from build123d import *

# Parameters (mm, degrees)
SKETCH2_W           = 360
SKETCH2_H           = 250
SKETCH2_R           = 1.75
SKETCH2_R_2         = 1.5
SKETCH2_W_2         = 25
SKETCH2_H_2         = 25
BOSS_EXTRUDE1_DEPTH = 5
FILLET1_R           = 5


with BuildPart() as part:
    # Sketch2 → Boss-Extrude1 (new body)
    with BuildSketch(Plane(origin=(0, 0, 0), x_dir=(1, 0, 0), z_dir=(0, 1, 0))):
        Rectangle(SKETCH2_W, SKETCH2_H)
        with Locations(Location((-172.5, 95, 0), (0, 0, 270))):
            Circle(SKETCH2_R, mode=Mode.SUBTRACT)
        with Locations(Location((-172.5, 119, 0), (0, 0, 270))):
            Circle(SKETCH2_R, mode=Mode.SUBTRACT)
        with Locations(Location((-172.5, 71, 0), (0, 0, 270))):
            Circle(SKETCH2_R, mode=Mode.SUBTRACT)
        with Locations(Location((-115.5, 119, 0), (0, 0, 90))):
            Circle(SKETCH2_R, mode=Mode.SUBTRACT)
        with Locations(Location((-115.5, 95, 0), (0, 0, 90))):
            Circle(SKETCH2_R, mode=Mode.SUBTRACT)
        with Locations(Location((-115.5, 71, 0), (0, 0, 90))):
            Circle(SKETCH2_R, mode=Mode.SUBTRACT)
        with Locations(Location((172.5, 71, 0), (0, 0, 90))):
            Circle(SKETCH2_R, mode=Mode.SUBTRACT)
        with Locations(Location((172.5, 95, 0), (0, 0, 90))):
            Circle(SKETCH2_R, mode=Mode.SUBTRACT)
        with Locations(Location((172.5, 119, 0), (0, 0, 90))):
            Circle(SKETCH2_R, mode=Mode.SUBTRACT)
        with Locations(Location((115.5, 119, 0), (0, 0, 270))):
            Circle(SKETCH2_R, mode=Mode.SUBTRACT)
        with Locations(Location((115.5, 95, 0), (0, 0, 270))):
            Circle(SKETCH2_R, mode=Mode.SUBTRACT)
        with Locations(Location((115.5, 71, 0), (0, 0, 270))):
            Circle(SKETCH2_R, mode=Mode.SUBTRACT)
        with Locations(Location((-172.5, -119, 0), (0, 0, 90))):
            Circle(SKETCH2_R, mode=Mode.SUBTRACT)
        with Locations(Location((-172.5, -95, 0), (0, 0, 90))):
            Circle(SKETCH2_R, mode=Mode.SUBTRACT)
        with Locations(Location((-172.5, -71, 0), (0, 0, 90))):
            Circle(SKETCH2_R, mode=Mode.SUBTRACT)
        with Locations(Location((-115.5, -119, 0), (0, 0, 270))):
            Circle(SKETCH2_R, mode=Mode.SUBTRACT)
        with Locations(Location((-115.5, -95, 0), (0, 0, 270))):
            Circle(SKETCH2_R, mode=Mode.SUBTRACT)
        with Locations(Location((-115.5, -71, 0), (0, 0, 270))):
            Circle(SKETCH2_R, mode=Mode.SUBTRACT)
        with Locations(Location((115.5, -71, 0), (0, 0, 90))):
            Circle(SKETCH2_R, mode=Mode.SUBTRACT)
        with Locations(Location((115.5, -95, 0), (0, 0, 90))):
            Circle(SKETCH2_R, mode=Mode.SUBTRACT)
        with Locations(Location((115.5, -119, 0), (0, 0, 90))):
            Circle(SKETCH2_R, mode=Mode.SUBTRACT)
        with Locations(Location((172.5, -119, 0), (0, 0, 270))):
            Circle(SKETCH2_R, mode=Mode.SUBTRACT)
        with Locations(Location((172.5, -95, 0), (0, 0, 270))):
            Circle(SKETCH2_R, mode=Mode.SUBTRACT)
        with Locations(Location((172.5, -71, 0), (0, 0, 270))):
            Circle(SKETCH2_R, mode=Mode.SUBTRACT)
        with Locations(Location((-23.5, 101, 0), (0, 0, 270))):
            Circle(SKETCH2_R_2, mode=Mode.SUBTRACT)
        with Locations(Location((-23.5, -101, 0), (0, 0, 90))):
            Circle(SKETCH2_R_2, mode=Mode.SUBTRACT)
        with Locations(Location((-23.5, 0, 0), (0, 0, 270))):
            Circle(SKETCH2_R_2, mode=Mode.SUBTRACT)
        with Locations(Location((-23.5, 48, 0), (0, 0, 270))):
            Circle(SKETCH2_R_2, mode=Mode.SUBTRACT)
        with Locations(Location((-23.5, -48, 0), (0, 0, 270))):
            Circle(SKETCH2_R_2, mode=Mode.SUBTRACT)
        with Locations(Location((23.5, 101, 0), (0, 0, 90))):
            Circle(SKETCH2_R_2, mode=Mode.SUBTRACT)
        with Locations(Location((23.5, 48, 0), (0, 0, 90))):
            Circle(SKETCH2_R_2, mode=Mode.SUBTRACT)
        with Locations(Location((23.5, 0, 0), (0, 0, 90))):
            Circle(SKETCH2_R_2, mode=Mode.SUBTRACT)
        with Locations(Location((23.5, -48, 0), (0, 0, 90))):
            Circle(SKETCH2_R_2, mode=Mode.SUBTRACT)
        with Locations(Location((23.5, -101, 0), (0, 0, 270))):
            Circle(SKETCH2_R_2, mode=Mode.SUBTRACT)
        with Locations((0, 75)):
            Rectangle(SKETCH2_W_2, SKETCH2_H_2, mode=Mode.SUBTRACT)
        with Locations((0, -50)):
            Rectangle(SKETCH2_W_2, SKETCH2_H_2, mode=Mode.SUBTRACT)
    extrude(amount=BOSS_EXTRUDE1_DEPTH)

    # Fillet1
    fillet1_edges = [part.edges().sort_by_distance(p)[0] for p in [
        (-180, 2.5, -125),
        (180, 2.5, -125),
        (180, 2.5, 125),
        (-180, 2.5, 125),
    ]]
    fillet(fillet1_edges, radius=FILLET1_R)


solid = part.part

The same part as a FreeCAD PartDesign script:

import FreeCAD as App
import Part
import Sketcher
Q = App.Units.Quantity


def edges_at(feature, points):
    """Names of the edges that pass closest to the given points."""
    edges = feature.Shape.Edges
    near = lambda p: min(range(len(edges)), key=lambda i: edges[i].distToShape(Part.Vertex(*p))[0])
    return sorted({f"Edge{near(p) + 1}" for p in points})

doc = App.newDocument("Part")
body = doc.addObject("PartDesign::Body", "Body")

# Sketch on XZ plane
sketch1 = doc.addObject("Sketcher::SketchObject", "Sketch")
body.addObject(sketch1)
sketch1.AttachmentSupport = (doc.XZ_Plane, [""])
sketch1.MapMode = "FlatFace"
sketch1.addGeometry([
    Part.LineSegment(App.Vector(-180, -125, 0), App.Vector(-180, 125, 0)),  # 0
    Part.LineSegment(App.Vector(-180, 125, 0), App.Vector(180, 125, 0)),  # 1
    Part.LineSegment(App.Vector(180, 125, 0), App.Vector(180, -125, 0)),  # 2
    Part.LineSegment(App.Vector(180, -125, 0), App.Vector(-180, -125, 0)),  # 3
    Part.Circle(App.Vector(-172.5, 119, 0), App.Vector(0, 0, 1), 1.8),  # 4
    Part.Circle(App.Vector(-172.5, 95, 0), App.Vector(0, 0, 1), 1.8),  # 5
    Part.Circle(App.Vector(-115.5, 119, 0), App.Vector(0, 0, 1), 1.8),  # 6
    Part.Circle(App.Vector(-115.5, 95, 0), App.Vector(0, 0, 1), 1.8),  # 7
    Part.Circle(App.Vector(-172.5, 71, 0), App.Vector(0, 0, 1), 1.8),  # 8
    Part.Circle(App.Vector(-115.5, 71, 0), App.Vector(0, 0, 1), 1.8),  # 9
    Part.Circle(App.Vector(-23.5, 101, 0), App.Vector(0, 0, 1), 1.5),  # 10
    Part.Circle(App.Vector(-23.5, 48, 0), App.Vector(0, 0, 1), 1.5),  # 11
    Part.Circle(App.Vector(23.5, 101, 0), App.Vector(0, 0, 1), 1.5),  # 12
    Part.Circle(App.Vector(115.5, 119, 0), App.Vector(0, 0, 1), 1.8),  # 13
    Part.Circle(App.Vector(115.5, 95, 0), App.Vector(0, 0, 1), 1.8),  # 14
    Part.Circle(App.Vector(172.5, 119, 0), App.Vector(0, 0, 1), 1.8),  # 15
    Part.Circle(App.Vector(172.5, 95, 0), App.Vector(0, 0, 1), 1.8),  # 16
    Part.Circle(App.Vector(115.5, 71, 0), App.Vector(0, 0, 1), 1.8),  # 17
    Part.Circle(App.Vector(172.5, 71, 0), App.Vector(0, 0, 1), 1.8),  # 18
    Part.LineSegment(App.Vector(12.5, 62.5, 0), App.Vector(-12.5, 62.5, 0)),  # 19
    Part.LineSegment(App.Vector(-12.5, 62.5, 0), App.Vector(-12.5, 37.5, 0)),  # 20
    Part.LineSegment(App.Vector(-12.5, 37.5, 0), App.Vector(12.5, 37.5, 0)),  # 21
    Part.LineSegment(App.Vector(12.5, 37.5, 0), App.Vector(12.5, 62.5, 0)),  # 22
    Part.Circle(App.Vector(23.5, 48, 0), App.Vector(0, 0, 1), 1.5),  # 23
    Part.Circle(App.Vector(-23.5, 0, 0), App.Vector(0, 0, 1), 1.5),  # 24
    Part.Circle(App.Vector(-23.5, -48, 0), App.Vector(0, 0, 1), 1.5),  # 25
    Part.Circle(App.Vector(-172.5, -71, 0), App.Vector(0, 0, 1), 1.8),  # 26
    Part.Circle(App.Vector(-115.5, -71, 0), App.Vector(0, 0, 1), 1.8),  # 27
    Part.Circle(App.Vector(-172.5, -95, 0), App.Vector(0, 0, 1), 1.8),  # 28
    Part.Circle(App.Vector(-172.5, -119, 0), App.Vector(0, 0, 1), 1.8),  # 29
    Part.Circle(App.Vector(-115.5, -95, 0), App.Vector(0, 0, 1), 1.8),  # 30
    Part.Circle(App.Vector(-115.5, -119, 0), App.Vector(0, 0, 1), 1.8),  # 31
    Part.Circle(App.Vector(-23.5, -101, 0), App.Vector(0, 0, 1), 1.5),  # 32
    Part.Circle(App.Vector(23.5, 0, 0), App.Vector(0, 0, 1), 1.5),  # 33
    Part.Circle(App.Vector(23.5, -48, 0), App.Vector(0, 0, 1), 1.5),  # 34
    Part.LineSegment(App.Vector(12.5, -62.5, 0), App.Vector(-12.5, -62.5, 0)),  # 35
    Part.LineSegment(App.Vector(-12.5, -62.5, 0), App.Vector(-12.5, -87.5, 0)),  # 36
    Part.LineSegment(App.Vector(-12.5, -87.5, 0), App.Vector(12.5, -87.5, 0)),  # 37
    Part.LineSegment(App.Vector(12.5, -87.5, 0), App.Vector(12.5, -62.5, 0)),  # 38
    Part.Circle(App.Vector(23.5, -101, 0), App.Vector(0, 0, 1), 1.5),  # 39
    Part.Circle(App.Vector(115.5, -71, 0), App.Vector(0, 0, 1), 1.8),  # 40
    Part.Circle(App.Vector(172.5, -71, 0), App.Vector(0, 0, 1), 1.8),  # 41
    Part.Circle(App.Vector(115.5, -95, 0), App.Vector(0, 0, 1), 1.8),  # 42
    Part.Circle(App.Vector(115.5, -119, 0), App.Vector(0, 0, 1), 1.8),  # 43
    Part.Circle(App.Vector(172.5, -95, 0), App.Vector(0, 0, 1), 1.8),  # 44
    Part.Circle(App.Vector(172.5, -119, 0), App.Vector(0, 0, 1), 1.8),  # 45
], False)
sketch1.addConstraint([
    Sketcher.Constraint("Coincident", 0, 2, 1, 1),
    Sketcher.Constraint("Coincident", 1, 2, 2, 1),
    Sketcher.Constraint("Coincident", 2, 2, 3, 1),
    Sketcher.Constraint("Coincident", 3, 2, 0, 1),
    Sketcher.Constraint("Coincident", 19, 2, 20, 1),
    Sketcher.Constraint("Coincident", 20, 2, 21, 1),
    Sketcher.Constraint("Coincident", 21, 2, 22, 1),
    Sketcher.Constraint("Coincident", 22, 2, 19, 1),
    Sketcher.Constraint("Coincident", 35, 2, 36, 1),
    Sketcher.Constraint("Coincident", 36, 2, 37, 1),
    Sketcher.Constraint("Coincident", 37, 2, 38, 1),
    Sketcher.Constraint("Coincident", 38, 2, 35, 1),
    Sketcher.Constraint("Vertical", 0),
    Sketcher.Constraint("Horizontal", 1),
    Sketcher.Constraint("Vertical", 2),
    Sketcher.Constraint("Horizontal", 3),
    Sketcher.Constraint("Horizontal", 19),
    Sketcher.Constraint("Vertical", 20),
    Sketcher.Constraint("Horizontal", 21),
    Sketcher.Constraint("Vertical", 22),
    Sketcher.Constraint("Horizontal", 35),
    Sketcher.Constraint("Vertical", 36),
    Sketcher.Constraint("Horizontal", 37),
    Sketcher.Constraint("Vertical", 38),
    Sketcher.Constraint("Equal", 4, 5),
    Sketcher.Constraint("Equal", 5, 6),
    Sketcher.Constraint("Equal", 6, 7),
    Sketcher.Constraint("Equal", 7, 8),
    Sketcher.Constraint("Equal", 8, 9),
    Sketcher.Constraint("Equal", 10, 11),
    Sketcher.Constraint("Equal", 11, 12),
    Sketcher.Constraint("Equal", 9, 13),
    Sketcher.Constraint("Equal", 13, 14),
    Sketcher.Constraint("Equal", 14, 15),
    Sketcher.Constraint("Equal", 15, 16),
    Sketcher.Constraint("Equal", 16, 17),
    Sketcher.Constraint("Equal", 17, 18),
    Sketcher.Constraint("Equal", 12, 23),
    Sketcher.Constraint("Equal", 23, 24),
    Sketcher.Constraint("Equal", 24, 25),
    Sketcher.Constraint("Equal", 18, 26),
    Sketcher.Constraint("Equal", 26, 27),
    Sketcher.Constraint("Equal", 27, 28),
    Sketcher.Constraint("Equal", 28, 29),
    Sketcher.Constraint("Equal", 29, 30),
    Sketcher.Constraint("Equal", 30, 31),
    Sketcher.Constraint("Equal", 25, 32),
    Sketcher.Constraint("Equal", 32, 33),
    Sketcher.Constraint("Equal", 33, 34),
    Sketcher.Constraint("Equal", 34, 39),
    Sketcher.Constraint("Equal", 31, 40),
    Sketcher.Constraint("Equal", 40, 41),
    Sketcher.Constraint("Equal", 41, 42),
    Sketcher.Constraint("Equal", 42, 43),
    Sketcher.Constraint("Equal", 43, 44),
    Sketcher.Constraint("Equal", 44, 45),
    Sketcher.Constraint("Symmetric", 23, 3, 25, 3, -1, 1),
    Sketcher.Constraint("Symmetric", 18, 3, 26, 3, -1, 1),
    Sketcher.Constraint("Symmetric", 17, 3, 27, 3, -1, 1),
    Sketcher.Constraint("Symmetric", 16, 3, 28, 3, -1, 1),
    Sketcher.Constraint("Symmetric", 15, 3, 29, 3, -1, 1),
    Sketcher.Constraint("Symmetric", 14, 3, 30, 3, -1, 1),
    Sketcher.Constraint("Symmetric", 13, 3, 31, 3, -1, 1),
    Sketcher.Constraint("Symmetric", 12, 3, 32, 3, -1, 1),
    Sketcher.Constraint("Symmetric", 24, 3, 33, 3, -1, 1),
    Sketcher.Constraint("Symmetric", 11, 3, 34, 3, -1, 1),
    Sketcher.Constraint("Symmetric", 10, 3, 39, 3, -1, 1),
    Sketcher.Constraint("Symmetric", 9, 3, 40, 3, -1, 1),
    Sketcher.Constraint("Symmetric", 8, 3, 41, 3, -1, 1),
    Sketcher.Constraint("Symmetric", 7, 3, 42, 3, -1, 1),
    Sketcher.Constraint("Symmetric", 6, 3, 43, 3, -1, 1),
    Sketcher.Constraint("Symmetric", 5, 3, 44, 3, -1, 1),
    Sketcher.Constraint("Symmetric", 4, 3, 45, 3, -1, 1),
    Sketcher.Constraint("Symmetric", 0, 2, 2, 2, -1, 1),
    Sketcher.Constraint("Symmetric", 22, 2, 35, 2, -1, 1),
    Sketcher.Constraint("Symmetric", 10, 3, 12, 3, -2),
    Sketcher.Constraint("Symmetric", 6, 3, 13, 3, -2),
    Sketcher.Constraint("Symmetric", 7, 3, 14, 3, -2),
    Sketcher.Constraint("Symmetric", 4, 3, 15, 3, -2),
    Sketcher.Constraint("Symmetric", 5, 3, 16, 3, -2),
    Sketcher.Constraint("Symmetric", 9, 3, 17, 3, -2),
    Sketcher.Constraint("Symmetric", 8, 3, 18, 3, -2),
    Sketcher.Constraint("Symmetric", 11, 3, 23, 3, -2),
    Sketcher.Constraint("PointOnObject", 24, 3, -1),
    Sketcher.Constraint("Horizontal", 4, 3, 6, 3),
    Sketcher.Constraint("Horizontal", 5, 3, 7, 3),
    Sketcher.Constraint("Horizontal", 8, 3, 9, 3),
    Sketcher.Constraint("Vertical", 4, 3, 5, 3),
    Sketcher.Constraint("Vertical", 6, 3, 7, 3),
    Sketcher.Constraint("Vertical", 5, 3, 8, 3),
    Sketcher.Constraint("Vertical", 7, 3, 9, 3),
    Sketcher.Constraint("Vertical", 10, 3, 11, 3),
    Sketcher.Constraint("Vertical", 11, 3, 24, 3),
    Sketcher.Constraint("Vertical", 20, 2, 35, 2),
    Sketcher.Constraint("Vertical", 22, 2, 37, 2),
    Sketcher.Constraint("Equal", 37, 20),
    Sketcher.Constraint("Equal", 22, 36),
    Sketcher.Constraint("Diameter", 10, Q("3 mm")),
    Sketcher.Constraint("Diameter", 4, Q("3.5 mm")),
    Sketcher.Constraint("DistanceX", 1, 1, 1, 2, Q("360 mm")),
    Sketcher.Constraint("DistanceX", 19, 2, 19, 1, Q("25 mm")),
    Sketcher.Constraint("DistanceY", 0, 1, 0, 2, Q("250 mm")),
    Sketcher.Constraint("DistanceY", -1, 1, 4, 3, Q("119 mm")),
    Sketcher.Constraint("DistanceY", -1, 1, 5, 3, Q("95 mm")),
    Sketcher.Constraint("DistanceY", -1, 1, 8, 3, Q("71 mm")),
    Sketcher.Constraint("DistanceY", -1, 1, 10, 3, Q("101 mm")),
    Sketcher.Constraint("DistanceY", -1, 1, 11, 3, Q("48 mm")),
    Sketcher.Constraint("DistanceX", 4, 3, 6, 3, Q("57 mm")),
    Sketcher.Constraint("DistanceX", 7, 3, 10, 3, Q("92 mm")),
    Sketcher.Constraint("DistanceX", 10, 3, 12, 3, Q("47 mm")),
    Sketcher.Constraint("DistanceY", -1, 1, 19, 2, Q("62.5 mm")),
])
pad1 = doc.addObject("PartDesign::Pad", "Pad")
body.addObject(pad1)
pad1.Profile = sketch1
pad1.Length = 5
pad1.Reversed = True
doc.recompute()

fillet = doc.addObject("PartDesign::Fillet", "Fillet")
body.addObject(fillet)
fillet.Base = (pad1, edges_at(pad1, [
    (-180, 2.5, -125),
    (180, 2.5, -125),
    (180, 2.5, 125),
    (-180, 2.5, 125),
]))
fillet.Radius = 5

doc.recompute()
